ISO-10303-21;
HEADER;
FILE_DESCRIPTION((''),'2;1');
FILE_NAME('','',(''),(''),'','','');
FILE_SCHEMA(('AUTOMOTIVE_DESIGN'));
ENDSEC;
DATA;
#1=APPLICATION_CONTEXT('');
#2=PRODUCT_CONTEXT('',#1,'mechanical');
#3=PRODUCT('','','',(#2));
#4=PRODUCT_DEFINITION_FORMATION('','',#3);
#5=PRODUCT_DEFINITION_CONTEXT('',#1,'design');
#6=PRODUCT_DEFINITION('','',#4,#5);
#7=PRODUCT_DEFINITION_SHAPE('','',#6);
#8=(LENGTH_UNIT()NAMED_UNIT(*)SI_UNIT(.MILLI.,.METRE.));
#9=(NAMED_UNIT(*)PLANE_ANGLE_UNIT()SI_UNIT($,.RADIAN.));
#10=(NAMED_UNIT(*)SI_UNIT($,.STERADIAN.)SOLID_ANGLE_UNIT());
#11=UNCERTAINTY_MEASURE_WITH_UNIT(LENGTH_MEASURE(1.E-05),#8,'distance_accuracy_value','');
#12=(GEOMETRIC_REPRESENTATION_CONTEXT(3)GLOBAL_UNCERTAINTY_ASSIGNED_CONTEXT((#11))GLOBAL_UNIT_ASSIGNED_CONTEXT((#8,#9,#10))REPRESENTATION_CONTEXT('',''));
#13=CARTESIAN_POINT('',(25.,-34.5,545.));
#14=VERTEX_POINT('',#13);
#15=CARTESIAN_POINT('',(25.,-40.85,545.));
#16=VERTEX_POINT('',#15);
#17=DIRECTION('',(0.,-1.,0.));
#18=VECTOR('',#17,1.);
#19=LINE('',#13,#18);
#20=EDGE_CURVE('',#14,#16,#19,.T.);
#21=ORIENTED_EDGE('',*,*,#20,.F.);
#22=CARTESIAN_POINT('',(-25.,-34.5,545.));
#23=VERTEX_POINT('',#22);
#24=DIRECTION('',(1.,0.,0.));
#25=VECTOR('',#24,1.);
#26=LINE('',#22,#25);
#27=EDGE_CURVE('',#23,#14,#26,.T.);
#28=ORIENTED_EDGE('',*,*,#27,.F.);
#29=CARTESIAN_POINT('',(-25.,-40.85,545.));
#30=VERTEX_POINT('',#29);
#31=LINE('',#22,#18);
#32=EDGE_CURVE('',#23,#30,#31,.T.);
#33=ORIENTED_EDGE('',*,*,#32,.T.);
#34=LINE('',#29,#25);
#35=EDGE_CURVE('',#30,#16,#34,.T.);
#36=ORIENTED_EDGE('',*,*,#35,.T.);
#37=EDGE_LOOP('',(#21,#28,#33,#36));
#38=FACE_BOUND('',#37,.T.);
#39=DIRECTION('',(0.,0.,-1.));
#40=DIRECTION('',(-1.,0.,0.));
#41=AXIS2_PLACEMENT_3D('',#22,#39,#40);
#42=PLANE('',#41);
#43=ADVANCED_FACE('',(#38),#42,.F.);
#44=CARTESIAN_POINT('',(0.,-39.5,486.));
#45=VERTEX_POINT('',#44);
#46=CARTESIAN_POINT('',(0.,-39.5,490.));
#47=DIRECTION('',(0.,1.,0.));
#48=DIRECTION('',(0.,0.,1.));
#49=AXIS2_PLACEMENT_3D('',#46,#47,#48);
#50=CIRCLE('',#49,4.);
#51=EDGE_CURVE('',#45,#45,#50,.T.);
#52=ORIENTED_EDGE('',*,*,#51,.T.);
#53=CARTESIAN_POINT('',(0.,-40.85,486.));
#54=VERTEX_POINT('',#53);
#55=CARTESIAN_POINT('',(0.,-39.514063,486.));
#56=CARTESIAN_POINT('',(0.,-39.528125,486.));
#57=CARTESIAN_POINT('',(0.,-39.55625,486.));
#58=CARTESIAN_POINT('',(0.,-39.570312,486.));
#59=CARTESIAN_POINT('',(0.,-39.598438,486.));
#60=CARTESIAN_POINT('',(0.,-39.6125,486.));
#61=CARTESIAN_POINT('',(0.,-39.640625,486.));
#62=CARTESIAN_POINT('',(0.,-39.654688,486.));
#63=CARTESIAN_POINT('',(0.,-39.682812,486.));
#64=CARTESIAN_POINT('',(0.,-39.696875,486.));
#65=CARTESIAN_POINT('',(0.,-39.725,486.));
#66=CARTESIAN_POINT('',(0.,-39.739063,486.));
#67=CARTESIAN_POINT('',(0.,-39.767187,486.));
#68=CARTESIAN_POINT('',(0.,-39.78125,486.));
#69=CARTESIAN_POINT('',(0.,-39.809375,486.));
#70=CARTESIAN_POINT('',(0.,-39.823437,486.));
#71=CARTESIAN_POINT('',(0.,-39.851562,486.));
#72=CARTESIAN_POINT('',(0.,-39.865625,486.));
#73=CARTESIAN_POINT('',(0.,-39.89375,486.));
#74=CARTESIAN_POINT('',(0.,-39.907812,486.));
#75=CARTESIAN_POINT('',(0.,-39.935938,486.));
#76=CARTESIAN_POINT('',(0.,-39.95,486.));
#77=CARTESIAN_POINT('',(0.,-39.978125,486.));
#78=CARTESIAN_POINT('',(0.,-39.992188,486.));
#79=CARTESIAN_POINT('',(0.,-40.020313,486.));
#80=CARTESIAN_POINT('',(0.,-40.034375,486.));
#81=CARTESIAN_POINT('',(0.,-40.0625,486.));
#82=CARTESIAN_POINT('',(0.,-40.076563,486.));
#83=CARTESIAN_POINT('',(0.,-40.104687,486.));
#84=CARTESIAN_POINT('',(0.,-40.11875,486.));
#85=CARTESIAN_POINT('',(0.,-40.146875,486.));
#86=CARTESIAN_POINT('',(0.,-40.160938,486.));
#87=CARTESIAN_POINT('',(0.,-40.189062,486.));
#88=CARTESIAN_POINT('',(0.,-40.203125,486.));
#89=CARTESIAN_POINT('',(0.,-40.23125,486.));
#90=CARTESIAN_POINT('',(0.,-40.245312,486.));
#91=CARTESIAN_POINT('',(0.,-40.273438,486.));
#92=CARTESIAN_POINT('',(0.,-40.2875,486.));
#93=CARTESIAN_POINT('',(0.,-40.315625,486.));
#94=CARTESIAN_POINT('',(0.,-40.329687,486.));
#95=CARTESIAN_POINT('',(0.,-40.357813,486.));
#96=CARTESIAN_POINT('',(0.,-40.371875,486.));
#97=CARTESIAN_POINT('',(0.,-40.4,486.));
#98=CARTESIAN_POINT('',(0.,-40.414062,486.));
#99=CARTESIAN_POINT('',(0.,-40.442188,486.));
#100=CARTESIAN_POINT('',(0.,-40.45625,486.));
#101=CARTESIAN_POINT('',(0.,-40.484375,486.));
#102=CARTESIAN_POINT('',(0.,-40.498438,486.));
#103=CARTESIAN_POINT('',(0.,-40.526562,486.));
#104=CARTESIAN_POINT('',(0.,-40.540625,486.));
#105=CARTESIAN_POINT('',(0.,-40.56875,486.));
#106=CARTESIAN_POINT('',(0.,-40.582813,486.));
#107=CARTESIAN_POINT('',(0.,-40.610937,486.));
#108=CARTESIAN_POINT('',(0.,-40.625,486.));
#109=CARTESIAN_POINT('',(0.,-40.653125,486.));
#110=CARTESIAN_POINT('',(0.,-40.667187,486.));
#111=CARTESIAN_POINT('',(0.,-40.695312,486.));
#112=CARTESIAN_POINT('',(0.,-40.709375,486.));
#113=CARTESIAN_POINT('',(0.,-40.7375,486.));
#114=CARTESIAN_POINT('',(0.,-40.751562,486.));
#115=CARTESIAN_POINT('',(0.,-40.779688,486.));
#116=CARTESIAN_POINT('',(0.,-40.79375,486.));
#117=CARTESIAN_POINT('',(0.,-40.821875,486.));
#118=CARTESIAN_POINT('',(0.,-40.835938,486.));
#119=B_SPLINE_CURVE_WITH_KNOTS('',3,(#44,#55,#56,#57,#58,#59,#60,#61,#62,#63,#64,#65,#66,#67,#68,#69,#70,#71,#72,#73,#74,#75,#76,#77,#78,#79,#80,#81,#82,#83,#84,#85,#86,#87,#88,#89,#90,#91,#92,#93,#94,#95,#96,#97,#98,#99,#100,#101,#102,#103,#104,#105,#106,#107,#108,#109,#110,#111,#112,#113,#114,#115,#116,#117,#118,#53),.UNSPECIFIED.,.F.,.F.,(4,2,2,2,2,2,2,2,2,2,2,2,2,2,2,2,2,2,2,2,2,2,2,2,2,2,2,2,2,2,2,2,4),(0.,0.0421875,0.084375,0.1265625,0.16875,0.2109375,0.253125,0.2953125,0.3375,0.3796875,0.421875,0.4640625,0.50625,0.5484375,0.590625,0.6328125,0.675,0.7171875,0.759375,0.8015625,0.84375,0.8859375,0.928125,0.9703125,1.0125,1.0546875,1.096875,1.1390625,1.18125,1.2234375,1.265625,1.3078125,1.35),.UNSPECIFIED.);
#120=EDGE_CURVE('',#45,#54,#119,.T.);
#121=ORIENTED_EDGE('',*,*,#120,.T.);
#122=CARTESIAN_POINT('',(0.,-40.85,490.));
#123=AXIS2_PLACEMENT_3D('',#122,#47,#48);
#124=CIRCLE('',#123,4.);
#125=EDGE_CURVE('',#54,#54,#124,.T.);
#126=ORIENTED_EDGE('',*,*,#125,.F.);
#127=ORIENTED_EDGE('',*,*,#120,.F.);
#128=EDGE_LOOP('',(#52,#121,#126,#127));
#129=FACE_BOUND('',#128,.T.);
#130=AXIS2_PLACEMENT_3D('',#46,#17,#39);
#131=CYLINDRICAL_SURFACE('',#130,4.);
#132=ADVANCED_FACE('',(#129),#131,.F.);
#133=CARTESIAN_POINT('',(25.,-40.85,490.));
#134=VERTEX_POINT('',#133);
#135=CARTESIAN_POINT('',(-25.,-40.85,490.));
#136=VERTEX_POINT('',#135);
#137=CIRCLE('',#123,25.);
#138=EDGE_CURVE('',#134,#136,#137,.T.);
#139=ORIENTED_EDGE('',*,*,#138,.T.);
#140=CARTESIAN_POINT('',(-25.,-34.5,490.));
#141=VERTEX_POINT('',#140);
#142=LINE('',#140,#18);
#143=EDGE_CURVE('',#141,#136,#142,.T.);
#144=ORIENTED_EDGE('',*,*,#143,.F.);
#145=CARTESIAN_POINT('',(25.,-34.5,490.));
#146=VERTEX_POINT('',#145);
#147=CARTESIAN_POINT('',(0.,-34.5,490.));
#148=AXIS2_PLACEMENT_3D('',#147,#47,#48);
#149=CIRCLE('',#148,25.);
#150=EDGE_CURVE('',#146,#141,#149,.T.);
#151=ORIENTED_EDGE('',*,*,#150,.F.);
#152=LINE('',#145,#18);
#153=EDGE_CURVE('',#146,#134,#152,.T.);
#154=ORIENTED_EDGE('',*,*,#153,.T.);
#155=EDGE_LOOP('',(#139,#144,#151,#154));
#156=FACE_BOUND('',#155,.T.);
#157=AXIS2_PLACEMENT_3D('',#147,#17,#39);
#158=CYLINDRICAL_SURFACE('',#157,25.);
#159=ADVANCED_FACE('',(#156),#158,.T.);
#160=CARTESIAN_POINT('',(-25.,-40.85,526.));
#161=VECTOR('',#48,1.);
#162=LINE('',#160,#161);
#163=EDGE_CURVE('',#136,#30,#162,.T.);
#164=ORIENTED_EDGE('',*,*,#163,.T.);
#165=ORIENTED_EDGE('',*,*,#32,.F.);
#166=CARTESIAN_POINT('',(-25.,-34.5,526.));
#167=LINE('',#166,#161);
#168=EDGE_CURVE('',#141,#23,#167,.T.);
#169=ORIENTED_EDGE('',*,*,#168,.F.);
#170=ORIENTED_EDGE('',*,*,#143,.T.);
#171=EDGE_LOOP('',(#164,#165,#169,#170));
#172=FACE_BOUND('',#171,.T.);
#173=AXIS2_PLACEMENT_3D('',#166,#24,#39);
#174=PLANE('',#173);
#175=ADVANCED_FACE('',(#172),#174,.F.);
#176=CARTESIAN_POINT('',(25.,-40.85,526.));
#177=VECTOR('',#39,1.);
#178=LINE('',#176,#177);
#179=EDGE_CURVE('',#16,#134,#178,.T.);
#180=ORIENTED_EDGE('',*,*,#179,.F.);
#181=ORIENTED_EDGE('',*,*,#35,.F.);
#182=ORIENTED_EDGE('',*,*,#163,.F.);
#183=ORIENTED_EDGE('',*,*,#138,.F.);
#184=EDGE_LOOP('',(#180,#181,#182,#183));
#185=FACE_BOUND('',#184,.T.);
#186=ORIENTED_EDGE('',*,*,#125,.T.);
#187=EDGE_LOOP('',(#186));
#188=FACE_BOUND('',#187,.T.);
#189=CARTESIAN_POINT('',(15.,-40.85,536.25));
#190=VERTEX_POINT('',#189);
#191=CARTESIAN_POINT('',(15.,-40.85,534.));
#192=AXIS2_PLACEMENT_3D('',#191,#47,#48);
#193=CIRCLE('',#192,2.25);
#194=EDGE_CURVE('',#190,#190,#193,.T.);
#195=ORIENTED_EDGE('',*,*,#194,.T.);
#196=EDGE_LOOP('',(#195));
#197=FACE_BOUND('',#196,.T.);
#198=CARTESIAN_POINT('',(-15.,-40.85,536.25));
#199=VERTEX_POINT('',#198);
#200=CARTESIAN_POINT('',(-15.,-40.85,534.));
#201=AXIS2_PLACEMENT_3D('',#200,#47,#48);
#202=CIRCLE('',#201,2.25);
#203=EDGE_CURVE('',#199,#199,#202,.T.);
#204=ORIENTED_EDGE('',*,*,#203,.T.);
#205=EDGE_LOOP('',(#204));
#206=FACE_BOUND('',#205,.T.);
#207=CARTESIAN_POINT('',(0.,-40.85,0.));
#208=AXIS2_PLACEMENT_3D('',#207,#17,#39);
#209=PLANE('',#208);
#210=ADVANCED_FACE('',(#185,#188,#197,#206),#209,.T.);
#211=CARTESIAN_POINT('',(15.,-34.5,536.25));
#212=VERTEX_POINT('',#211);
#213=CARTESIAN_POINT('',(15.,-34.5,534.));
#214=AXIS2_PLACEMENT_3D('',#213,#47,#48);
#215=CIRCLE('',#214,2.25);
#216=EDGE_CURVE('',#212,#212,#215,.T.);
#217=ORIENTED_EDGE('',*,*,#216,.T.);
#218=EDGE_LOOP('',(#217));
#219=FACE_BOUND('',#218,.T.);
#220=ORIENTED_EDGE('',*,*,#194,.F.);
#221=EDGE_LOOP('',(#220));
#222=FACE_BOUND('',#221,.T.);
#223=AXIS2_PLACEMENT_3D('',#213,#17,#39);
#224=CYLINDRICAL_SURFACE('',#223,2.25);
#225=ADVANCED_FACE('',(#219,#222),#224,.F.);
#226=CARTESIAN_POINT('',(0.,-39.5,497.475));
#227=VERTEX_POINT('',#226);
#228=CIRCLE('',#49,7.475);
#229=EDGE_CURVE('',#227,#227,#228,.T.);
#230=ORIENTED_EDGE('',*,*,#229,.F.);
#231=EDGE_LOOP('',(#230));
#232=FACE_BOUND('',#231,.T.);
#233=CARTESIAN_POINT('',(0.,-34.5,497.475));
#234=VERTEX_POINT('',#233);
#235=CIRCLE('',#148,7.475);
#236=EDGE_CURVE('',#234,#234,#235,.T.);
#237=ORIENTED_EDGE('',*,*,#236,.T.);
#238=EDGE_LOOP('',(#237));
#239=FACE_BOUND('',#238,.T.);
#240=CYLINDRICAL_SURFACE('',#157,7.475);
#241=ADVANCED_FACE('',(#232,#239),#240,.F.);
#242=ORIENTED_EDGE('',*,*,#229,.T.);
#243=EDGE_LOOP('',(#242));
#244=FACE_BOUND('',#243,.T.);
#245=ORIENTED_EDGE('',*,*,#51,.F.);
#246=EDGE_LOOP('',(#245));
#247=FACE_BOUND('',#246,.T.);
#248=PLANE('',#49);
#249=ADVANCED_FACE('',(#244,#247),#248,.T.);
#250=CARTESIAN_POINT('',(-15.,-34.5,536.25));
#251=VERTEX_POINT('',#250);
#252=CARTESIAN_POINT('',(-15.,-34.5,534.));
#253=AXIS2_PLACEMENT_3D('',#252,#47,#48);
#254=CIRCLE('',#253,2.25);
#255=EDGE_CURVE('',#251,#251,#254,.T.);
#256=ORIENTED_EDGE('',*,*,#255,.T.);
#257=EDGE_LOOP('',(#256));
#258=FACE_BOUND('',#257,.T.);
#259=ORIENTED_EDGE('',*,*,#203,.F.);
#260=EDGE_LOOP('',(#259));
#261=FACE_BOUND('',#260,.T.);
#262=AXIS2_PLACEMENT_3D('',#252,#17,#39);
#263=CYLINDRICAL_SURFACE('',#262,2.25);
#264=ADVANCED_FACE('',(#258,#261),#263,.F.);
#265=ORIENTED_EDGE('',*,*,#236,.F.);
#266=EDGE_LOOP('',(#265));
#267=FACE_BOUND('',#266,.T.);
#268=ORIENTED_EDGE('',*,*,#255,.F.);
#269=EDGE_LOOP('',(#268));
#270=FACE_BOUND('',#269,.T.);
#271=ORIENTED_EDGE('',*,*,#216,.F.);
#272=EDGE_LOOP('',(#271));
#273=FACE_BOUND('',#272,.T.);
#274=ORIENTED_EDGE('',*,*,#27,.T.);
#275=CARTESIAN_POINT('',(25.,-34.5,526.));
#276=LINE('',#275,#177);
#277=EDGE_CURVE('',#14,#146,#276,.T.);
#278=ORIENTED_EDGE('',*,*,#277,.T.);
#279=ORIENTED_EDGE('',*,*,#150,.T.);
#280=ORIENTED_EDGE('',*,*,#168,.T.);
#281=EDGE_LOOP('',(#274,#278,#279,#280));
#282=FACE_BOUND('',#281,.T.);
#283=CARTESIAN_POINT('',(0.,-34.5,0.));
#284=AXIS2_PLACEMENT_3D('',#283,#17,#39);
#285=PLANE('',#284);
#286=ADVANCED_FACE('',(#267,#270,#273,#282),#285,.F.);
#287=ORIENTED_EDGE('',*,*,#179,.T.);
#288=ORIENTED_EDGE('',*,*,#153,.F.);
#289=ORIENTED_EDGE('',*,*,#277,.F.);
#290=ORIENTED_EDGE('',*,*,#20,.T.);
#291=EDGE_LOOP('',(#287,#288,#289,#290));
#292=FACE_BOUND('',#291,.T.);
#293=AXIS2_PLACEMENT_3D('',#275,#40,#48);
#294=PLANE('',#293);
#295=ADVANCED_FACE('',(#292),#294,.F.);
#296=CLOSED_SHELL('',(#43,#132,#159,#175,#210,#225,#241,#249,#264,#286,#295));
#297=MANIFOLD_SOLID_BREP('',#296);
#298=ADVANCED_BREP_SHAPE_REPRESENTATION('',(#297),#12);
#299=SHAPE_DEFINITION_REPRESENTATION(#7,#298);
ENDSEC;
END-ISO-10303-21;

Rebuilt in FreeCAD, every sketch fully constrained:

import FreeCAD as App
import Part
import Sketcher
Q = App.Units.Quantity

doc = App.newDocument("Part")
body = doc.addObject("PartDesign::Body", "Body")

sketch1 = body.newObject("Sketcher::SketchObject", "Sketch")
sketch1.AttachmentSupport = (doc.getObject("XZ_Plane"), [""])
sketch1.MapMode = "FlatFace"
sketch1.AttachmentOffset = App.Placement(App.Vector(0, 0, 40.85), App.Rotation())
sketch1.addGeometry(Part.LineSegment(App.Vector(-25, 490, 0), App.Vector(-25, 526, 0)), False)
sketch1.addGeometry(Part.LineSegment(App.Vector(-25, 526, 0), App.Vector(25, 526, 0)), False)
sketch1.addGeometry(Part.LineSegment(App.Vector(25, 526, 0), App.Vector(25, 490, 0)), False)
sketch1.addGeometry(Part.LineSegment(App.Vector(25, 490, 0), App.Vector(-25, 490, 0)), False)
sketch1.addConstraint(Sketcher.Constraint("Coincident", 0, 2, 1, 1))
sketch1.addConstraint(Sketcher.Constraint("Coincident", 1, 2, 2, 1))
sketch1.addConstraint(Sketcher.Constraint("Coincident", 2, 2, 3, 1))
sketch1.addConstraint(Sketcher.Constraint("Coincident", 3, 2, 0, 1))
sketch1.addConstraint(Sketcher.Constraint("Vertical", 0))
sketch1.addConstraint(Sketcher.Constraint("Horizontal", 1))
sketch1.addConstraint(Sketcher.Constraint("Vertical", 2))
sketch1.addConstraint(Sketcher.Constraint("Horizontal", 3))
sketch1.addConstraint(Sketcher.Constraint("DistanceX", 1, 1, 1, 2, Q("50 mm")))
sketch1.addConstraint(Sketcher.Constraint("DistanceY", 0, 1, 0, 2, Q("36 mm")))
sketch1.addConstraint(Sketcher.Constraint("DistanceX", 0, 2, -1, 1, Q("25 mm")))
sketch1.addConstraint(Sketcher.Constraint("DistanceY", -1, 1, 0, 2, Q("526 mm")))
pad1 = body.newObject("PartDesign::Pad", "Pad")
pad1.Profile = sketch1
pad1.Length = 6.35
pad1.Reversed = True

sketch2 = body.newObject("Sketcher::SketchObject", "Sketch001")
sketch2.AttachmentSupport = (doc.getObject("XZ_Plane"), [""])
sketch2.MapMode = "FlatFace"
sketch2.AttachmentOffset = App.Placement(App.Vector(0, 0, 40.85), App.Rotation())
sketch2.addGeometry(Part.Circle(App.Vector(0, 490, 0), App.Vector(0, 0, 1), 25), False)
sketch2.addConstraint(Sketcher.Constraint("PointOnObject", 0, 3, -2))
sketch2.addConstraint(Sketcher.Constraint("Diameter", 0, Q("50 mm")))
sketch2.addConstraint(Sketcher.Constraint("DistanceY", -1, 1, 0, 3, Q("490 mm")))
pad2 = body.newObject("PartDesign::Pad", "Pad001")
pad2.Profile = sketch2
pad2.Length = 6.35
pad2.Reversed = True

sketch3 = body.newObject("Sketcher::SketchObject", "Sketch002")
sketch3.AttachmentSupport = (doc.getObject("XZ_Plane"), [""])
sketch3.MapMode = "FlatFace"
sketch3.AttachmentOffset = App.Placement(App.Vector(0, 0, 39.5), App.Rotation())
sketch3.addGeometry(Part.Circle(App.Vector(0, 490, 0), App.Vector(0, 0, 1), 7), False)
sketch3.addConstraint(Sketcher.Constraint("PointOnObject", 0, 3, -2))
sketch3.addConstraint(Sketcher.Constraint("Diameter", 0, Q("14.95 mm")))
sketch3.addConstraint(Sketcher.Constraint("DistanceY", -1, 1, 0, 3, Q("490 mm")))
pocket1 = body.newObject("PartDesign::Pocket", "Pocket")
pocket1.Profile = sketch3
pocket1.Length = 5

sketch4 = body.newObject("Sketcher::SketchObject", "Sketch003")
sketch4.AttachmentSupport = (doc.getObject("XZ_Plane"), [""])
sketch4.MapMode = "FlatFace"
sketch4.AttachmentOffset = App.Placement(App.Vector(0, 0, 40.85), App.Rotation())
sketch4.addGeometry(Part.Circle(App.Vector(0, 490, 0), App.Vector(0, 0, 1), 4), False)
sketch4.addConstraint(Sketcher.Constraint("PointOnObject", 0, 3, -2))
sketch4.addConstraint(Sketcher.Constraint("Diameter", 0, Q("8 mm")))
sketch4.addConstraint(Sketcher.Constraint("DistanceY", -1, 1, 0, 3, Q("490 mm")))
pocket2 = body.newObject("PartDesign::Pocket", "Pocket001")
pocket2.Profile = sketch4
pocket2.Length = 1.35

sketch5 = body.newObject("Sketcher::SketchObject", "Sketch004")
sketch5.AttachmentSupport = (doc.getObject("XZ_Plane"), [""])
sketch5.MapMode = "FlatFace"
sketch5.AttachmentOffset = App.Placement(App.Vector(0, 0, 40.85), App.Rotation())
sketch5.addGeometry(Part.LineSegment(App.Vector(-25, 526, 0), App.Vector(-25, 545, 0)), False)
sketch5.addGeometry(Part.LineSegment(App.Vector(-25, 545, 0), App.Vector(25, 545, 0)), False)
sketch5.addGeometry(Part.LineSegment(App.Vector(25, 545, 0), App.Vector(25, 526, 0)), False)
sketch5.addGeometry(Part.LineSegment(App.Vector(25, 526, 0), App.Vector(-25, 526, 0)), False)
sketch5.addConstraint(Sketcher.Constraint("Coincident", 0, 2, 1, 1))
sketch5.addConstraint(Sketcher.Constraint("Coincident", 1, 2, 2, 1))
sketch5.addConstraint(Sketcher.Constraint("Coincident", 2, 2, 3, 1))
sketch5.addConstraint(Sketcher.Constraint("Coincident", 3, 2, 0, 1))
sketch5.addConstraint(Sketcher.Constraint("Vertical", 0))
sketch5.addConstraint(Sketcher.Constraint("Horizontal", 1))
sketch5.addConstraint(Sketcher.Constraint("Vertical", 2))
sketch5.addConstraint(Sketcher.Constraint("Horizontal", 3))
sketch5.addConstraint(Sketcher.Constraint("DistanceX", 1, 1, 1, 2, Q("50 mm")))
sketch5.addConstraint(Sketcher.Constraint("DistanceY", 0, 1, 0, 2, Q("19 mm")))
sketch5.addConstraint(Sketcher.Constraint("DistanceX", 0, 2, -1, 1, Q("25 mm")))
sketch5.addConstraint(Sketcher.Constraint("DistanceY", -1, 1, 0, 2, Q("545 mm")))
pad3 = body.newObject("PartDesign::Pad", "Pad002")
pad3.Profile = sketch5
pad3.Length = 6.35
pad3.Reversed = True

sketch6 = body.newObject("Sketcher::SketchObject", "Sketch005")
sketch6.AttachmentSupport = (doc.getObject("XZ_Plane"), [""])
sketch6.MapMode = "FlatFace"
sketch6.AttachmentOffset = App.Placement(App.Vector(0, 0, 40.85), App.Rotation())
sketch6.addGeometry(Part.Circle(App.Vector(-15, 534, 0), App.Vector(0, 0, 1), 2.2), False)
sketch6.addGeometry(Part.Circle(App.Vector(15, 534, 0), App.Vector(0, 0, 1), 2.2), False)
sketch6.addConstraint(Sketcher.Constraint("Equal", 0, 1))
sketch6.addConstraint(Sketcher.Constraint("Symmetric", 0, 3, 1, 3, -2))
sketch6.addConstraint(Sketcher.Constraint("Diameter", 0, Q("4.5 mm")))
sketch6.addConstraint(Sketcher.Constraint("DistanceX", 0, 3, -1, 1, Q("15 mm")))
sketch6.addConstraint(Sketcher.Constraint("DistanceY", -1, 1, 0, 3, Q("534 mm")))
pocket3 = body.newObject("PartDesign::Pocket", "Pocket002")
pocket3.Profile = sketch6
pocket3.Length = 6.35

doc.recompute()
